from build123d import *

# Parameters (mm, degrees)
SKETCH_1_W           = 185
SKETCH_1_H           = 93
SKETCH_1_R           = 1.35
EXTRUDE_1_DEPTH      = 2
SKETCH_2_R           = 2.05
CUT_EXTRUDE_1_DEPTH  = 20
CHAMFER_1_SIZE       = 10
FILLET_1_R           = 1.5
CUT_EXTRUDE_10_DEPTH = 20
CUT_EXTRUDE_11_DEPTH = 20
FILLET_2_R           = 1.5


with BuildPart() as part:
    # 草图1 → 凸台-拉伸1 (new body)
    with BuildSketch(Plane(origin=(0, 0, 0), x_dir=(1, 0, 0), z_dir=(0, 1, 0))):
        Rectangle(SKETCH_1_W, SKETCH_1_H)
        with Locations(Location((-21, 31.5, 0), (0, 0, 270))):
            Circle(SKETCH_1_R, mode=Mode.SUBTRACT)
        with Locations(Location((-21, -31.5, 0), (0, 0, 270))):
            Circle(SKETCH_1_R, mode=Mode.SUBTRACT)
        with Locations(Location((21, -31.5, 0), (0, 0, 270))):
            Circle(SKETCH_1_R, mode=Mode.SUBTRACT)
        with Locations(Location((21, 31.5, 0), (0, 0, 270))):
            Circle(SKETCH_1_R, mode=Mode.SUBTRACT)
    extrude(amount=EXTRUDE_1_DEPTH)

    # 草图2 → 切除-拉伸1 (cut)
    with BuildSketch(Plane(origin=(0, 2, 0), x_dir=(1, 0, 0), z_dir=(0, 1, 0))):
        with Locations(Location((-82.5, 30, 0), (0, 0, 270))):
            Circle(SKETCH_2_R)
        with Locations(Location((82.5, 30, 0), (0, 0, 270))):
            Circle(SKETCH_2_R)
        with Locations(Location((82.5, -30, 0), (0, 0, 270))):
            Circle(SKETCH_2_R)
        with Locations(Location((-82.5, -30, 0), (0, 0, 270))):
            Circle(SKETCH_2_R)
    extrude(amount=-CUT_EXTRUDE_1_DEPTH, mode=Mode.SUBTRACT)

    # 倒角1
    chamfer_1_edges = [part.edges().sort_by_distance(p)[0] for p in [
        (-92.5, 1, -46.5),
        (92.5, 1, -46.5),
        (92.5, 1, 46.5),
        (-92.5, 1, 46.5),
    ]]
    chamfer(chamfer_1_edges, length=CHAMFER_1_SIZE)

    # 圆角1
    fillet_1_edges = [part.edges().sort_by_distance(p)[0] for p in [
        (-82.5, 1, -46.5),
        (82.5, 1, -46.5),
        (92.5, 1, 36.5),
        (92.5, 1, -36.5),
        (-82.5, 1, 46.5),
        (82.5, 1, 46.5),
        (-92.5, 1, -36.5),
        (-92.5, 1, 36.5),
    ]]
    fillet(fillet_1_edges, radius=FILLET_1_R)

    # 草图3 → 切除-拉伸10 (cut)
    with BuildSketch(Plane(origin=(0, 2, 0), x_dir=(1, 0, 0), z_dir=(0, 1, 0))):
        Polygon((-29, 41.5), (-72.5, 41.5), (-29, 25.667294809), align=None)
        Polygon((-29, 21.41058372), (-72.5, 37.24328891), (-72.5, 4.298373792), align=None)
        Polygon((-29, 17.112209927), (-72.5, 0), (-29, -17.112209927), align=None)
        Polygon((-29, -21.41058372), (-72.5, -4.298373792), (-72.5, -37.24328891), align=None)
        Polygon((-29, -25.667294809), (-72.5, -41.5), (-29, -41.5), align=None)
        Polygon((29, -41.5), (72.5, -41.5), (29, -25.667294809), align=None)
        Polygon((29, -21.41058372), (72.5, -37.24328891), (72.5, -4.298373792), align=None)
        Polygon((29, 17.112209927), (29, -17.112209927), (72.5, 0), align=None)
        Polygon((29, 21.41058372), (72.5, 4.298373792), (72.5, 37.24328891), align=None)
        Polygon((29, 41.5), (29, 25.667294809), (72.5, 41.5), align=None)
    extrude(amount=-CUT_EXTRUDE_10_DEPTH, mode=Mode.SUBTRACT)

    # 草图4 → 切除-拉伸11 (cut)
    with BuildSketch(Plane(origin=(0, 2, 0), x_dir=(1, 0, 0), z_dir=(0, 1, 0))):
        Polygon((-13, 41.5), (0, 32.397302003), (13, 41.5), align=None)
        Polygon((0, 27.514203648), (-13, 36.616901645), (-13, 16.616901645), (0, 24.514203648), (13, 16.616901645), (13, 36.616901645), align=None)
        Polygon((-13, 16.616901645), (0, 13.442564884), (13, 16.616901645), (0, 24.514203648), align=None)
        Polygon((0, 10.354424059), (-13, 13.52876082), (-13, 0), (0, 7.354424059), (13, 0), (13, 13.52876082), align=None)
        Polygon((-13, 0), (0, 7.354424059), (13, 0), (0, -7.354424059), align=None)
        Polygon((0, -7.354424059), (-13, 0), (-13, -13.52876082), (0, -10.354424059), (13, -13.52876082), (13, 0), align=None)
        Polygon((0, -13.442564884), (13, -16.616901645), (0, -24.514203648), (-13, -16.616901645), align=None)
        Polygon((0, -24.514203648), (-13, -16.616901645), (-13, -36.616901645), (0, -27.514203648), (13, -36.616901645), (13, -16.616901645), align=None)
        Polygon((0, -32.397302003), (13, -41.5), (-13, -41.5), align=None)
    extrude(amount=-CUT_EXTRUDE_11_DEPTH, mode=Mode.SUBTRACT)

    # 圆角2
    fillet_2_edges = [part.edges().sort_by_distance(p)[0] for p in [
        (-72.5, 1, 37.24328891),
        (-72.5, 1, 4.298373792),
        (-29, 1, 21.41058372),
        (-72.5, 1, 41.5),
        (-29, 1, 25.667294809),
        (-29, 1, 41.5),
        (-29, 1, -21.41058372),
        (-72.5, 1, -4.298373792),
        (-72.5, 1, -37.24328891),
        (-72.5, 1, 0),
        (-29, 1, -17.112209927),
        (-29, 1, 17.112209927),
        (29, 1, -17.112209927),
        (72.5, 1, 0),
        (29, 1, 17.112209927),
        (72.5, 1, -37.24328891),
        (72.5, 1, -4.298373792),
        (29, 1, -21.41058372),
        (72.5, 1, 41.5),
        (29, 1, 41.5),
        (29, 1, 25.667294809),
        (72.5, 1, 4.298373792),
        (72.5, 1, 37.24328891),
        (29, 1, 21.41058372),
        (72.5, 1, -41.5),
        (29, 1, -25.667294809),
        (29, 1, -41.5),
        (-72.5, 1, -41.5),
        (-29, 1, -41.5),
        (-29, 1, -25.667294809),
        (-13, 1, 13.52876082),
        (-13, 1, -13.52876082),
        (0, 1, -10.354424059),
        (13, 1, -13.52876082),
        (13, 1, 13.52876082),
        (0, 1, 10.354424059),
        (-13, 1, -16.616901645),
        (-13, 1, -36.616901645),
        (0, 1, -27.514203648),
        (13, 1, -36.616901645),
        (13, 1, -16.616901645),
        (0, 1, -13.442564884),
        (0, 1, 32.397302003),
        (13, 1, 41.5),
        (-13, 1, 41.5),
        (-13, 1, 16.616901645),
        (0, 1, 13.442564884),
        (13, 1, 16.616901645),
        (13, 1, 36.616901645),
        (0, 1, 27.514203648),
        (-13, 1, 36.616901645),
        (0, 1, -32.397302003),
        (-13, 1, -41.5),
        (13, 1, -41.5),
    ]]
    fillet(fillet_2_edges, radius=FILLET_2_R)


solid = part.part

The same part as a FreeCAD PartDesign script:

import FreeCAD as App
import Part
import Sketcher
Q = App.Units.Quantity


def edges_at(feature, points):
    """Names of the edges that pass closest to the given points."""
    edges = feature.Shape.Edges
    near = lambda p: min(range(len(edges)), key=lambda i: edges[i].distToShape(Part.Vertex(*p))[0])
    return sorted({f"Edge{near(p) + 1}" for p in points})


def add_polygon(sketch, points):
    """Adds a closed chain of lines whose ends are joined by coincident constraints."""
    first, n = sketch.GeometryCount, len(points)
    for a, b in zip(points, points[1:] + points[:1]):
        sketch.addGeometry(Part.LineSegment(App.Vector(*a, 0), App.Vector(*b, 0)), False)
    for i in range(n):
        sketch.addConstraint(Sketcher.Constraint("Coincident", first + i, 2, first + (i + 1) % n, 1))

doc = App.newDocument("Part")
body = doc.addObject("PartDesign::Body", "Body")

sketch1 = doc.addObject("Sketcher::SketchObject", "Sketch")
body.addObject(sketch1)
sketch1.AttachmentSupport = (doc.XZ_Plane, [""])
sketch1.MapMode = "FlatFace"
add_polygon(sketch1, [(-92.5, -46.5), (-92.5, 46.5), (92.5, 46.5), (92.5, -46.5)])
sketch1.addGeometry(Part.Circle(App.Vector(-21, 31.5, 0), App.Vector(0, 0, 1), 1.35), False)
sketch1.addGeometry(Part.Circle(App.Vector(21, 31.5, 0), App.Vector(0, 0, 1), 1.35), False)
sketch1.addGeometry(Part.Circle(App.Vector(-21, -31.5, 0), App.Vector(0, 0, 1), 1.35), False)
sketch1.addGeometry(Part.Circle(App.Vector(21, -31.5, 0), App.Vector(0, 0, 1), 1.35), False)
sketch1.addConstraint(Sketcher.Constraint("Vertical", 0))
sketch1.addConstraint(Sketcher.Constraint("Horizontal", 1))
sketch1.addConstraint(Sketcher.Constraint("Vertical", 2))
sketch1.addConstraint(Sketcher.Constraint("Horizontal", 3))
sketch1.addConstraint(Sketcher.Constraint("Equal", 4, 5))
sketch1.addConstraint(Sketcher.Constraint("Equal", 5, 6))
sketch1.addConstraint(Sketcher.Constraint("Equal", 6, 7))
sketch1.addConstraint(Sketcher.Constraint("Symmetric", 5, 3, 6, 3, -1, 1))
sketch1.addConstraint(Sketcher.Constraint("Symmetric", 4, 3, 7, 3, -1, 1))
sketch1.addConstraint(Sketcher.Constraint("Symmetric", 0, 2, 2, 2, -1, 1))
sketch1.addConstraint(Sketcher.Constraint("Symmetric", 4, 3, 5, 3, -2))
sketch1.addConstraint(Sketcher.Constraint("Diameter", 4, 2.7))
sketch1.addConstraint(Sketcher.Constraint("DistanceX", 1, 1, 1, 2, 185.0))
sketch1.addConstraint(Sketcher.Constraint("DistanceY", 0, 1, 0, 2, 93.0))
sketch1.addConstraint(Sketcher.Constraint("DistanceX", 4, 3, -1, 1, 21.0))
sketch1.addConstraint(Sketcher.Constraint("DistanceY", 6, 3, 4, 3, 63.0))
pad1 = doc.addObject("PartDesign::Pad", "Pad")
body.addObject(pad1)
pad1.Profile = sketch1
pad1.Length = 2
pad1.Reversed = True

sketch2 = doc.addObject("Sketcher::SketchObject", "Sketch001")
body.addObject(sketch2)
sketch2.AttachmentSupport = (doc.XZ_Plane, [""])
sketch2.MapMode = "FlatFace"
sketch2.AttachmentOffset = App.Placement(App.Vector(0, 0, -2), App.Rotation())
sketch2.addGeometry(Part.Circle(App.Vector(-82.5, -30, 0), App.Vector(0, 0, 1), 2.05), False)
sketch2.addGeometry(Part.Circle(App.Vector(82.5, -30, 0), App.Vector(0, 0, 1), 2.05), False)
sketch2.addGeometry(Part.Circle(App.Vector(82.5, 30, 0), App.Vector(0, 0, 1), 2.05), False)
sketch2.addGeometry(Part.Circle(App.Vector(-82.5, 30, 0), App.Vector(0, 0, 1), 2.05), False)
sketch2.addConstraint(Sketcher.Constraint("Equal", 0, 1))
sketch2.addConstraint(Sketcher.Constraint("Equal", 1, 2))
sketch2.addConstraint(Sketcher.Constraint("Equal", 2, 3))
sketch2.addConstraint(Sketcher.Constraint("Symmetric", 0, 3, 2, 3, -1, 1))
sketch2.addConstraint(Sketcher.Constraint("Symmetric", 1, 3, 3, 3, -1, 1))
sketch2.addConstraint(Sketcher.Constraint("Symmetric", 0, 3, 1, 3, -2))
sketch2.addConstraint(Sketcher.Constraint("Diameter", 0, 4.1))
sketch2.addConstraint(Sketcher.Constraint("DistanceY", 0, 3, -1, 1, 30.0))
sketch2.addConstraint(Sketcher.Constraint("DistanceX", 0, 3, 1, 3, 165.0))
pocket1 = doc.addObject("PartDesign::Pocket", "Pocket")
body.addObject(pocket1)
pocket1.Profile = sketch2
pocket1.Length = 20
pocket1.Reversed = True
doc.recompute()

chamfer = doc.addObject("PartDesign::Chamfer", "Chamfer")
body.addObject(chamfer)
chamfer.Base = (pocket1, edges_at(pocket1, [
    (-92.5, 1, -46.5),
    (92.5, 1, -46.5),
    (92.5, 1, 46.5),
    (-92.5, 1, 46.5),
]))
chamfer.Size = 10
doc.recompute()

fillet = doc.addObject("PartDesign::Fillet", "Fillet")
body.addObject(fillet)
fillet.Base = (chamfer, edges_at(chamfer, [
    (-82.5, 1, -46.5),
    (82.5, 1, -46.5),
    (92.5, 1, 36.5),
    (92.5, 1, -36.5),
    (-82.5, 1, 46.5),
    (82.5, 1, 46.5),
    (-92.5, 1, -36.5),
    (-92.5, 1, 36.5),
]))
fillet.Radius = 1.5

sketch3 = doc.addObject("Sketcher::SketchObject", "Sketch002")
body.addObject(sketch3)
sketch3.AttachmentSupport = (doc.XZ_Plane, [""])
sketch3.MapMode = "FlatFace"
sketch3.AttachmentOffset = App.Placement(App.Vector(0, 0, -2), App.Rotation())
add_polygon(sketch3, [(-29, -41.5), (-72.5, -41.5), (-29, -25.667295)])
add_polygon(sketch3, [(-29, -21.410584), (-72.5, -37.243289), (-72.5, -4.298374)])
add_polygon(sketch3, [(-29, -17.11221), (-72.5, 0), (-29, 17.11221)])
add_polygon(sketch3, [(-29, 21.410584), (-72.5, 4.298374), (-72.5, 37.243289)])
add_polygon(sketch3, [(-29, 25.667295), (-72.5, 41.5), (-29, 41.5)])
add_polygon(sketch3, [(29, 41.5), (72.5, 41.5), (29, 25.667295)])
add_polygon(sketch3, [(29, 21.410584), (72.5, 37.243289), (72.5, 4.298374)])
add_polygon(sketch3, [(29, -17.11221), (29, 17.11221), (72.5, 0)])
add_polygon(sketch3, [(29, -21.410584), (72.5, -4.298374), (72.5, -37.243289)])
add_polygon(sketch3, [(29, -41.5), (29, -25.667295), (72.5, -41.5)])
sketch3.addConstraint(Sketcher.Constraint("Horizontal", 0))
sketch3.addConstraint(Sketcher.Constraint("Vertical", 2))
sketch3.addConstraint(Sketcher.Constraint("Vertical", 4))
sketch3.addConstraint(Sketcher.Constraint("Vertical", 8))
sketch3.addConstraint(Sketcher.Constraint("Vertical", 10))
sketch3.addConstraint(Sketcher.Constraint("Horizontal", 13))
sketch3.addConstraint(Sketcher.Constraint("Vertical", 14))
sketch3.addConstraint(Sketcher.Constraint("Horizontal", 15))
sketch3.addConstraint(Sketcher.Constraint("Vertical", 17))
sketch3.addConstraint(Sketcher.Constraint("Vertical", 19))
sketch3.addConstraint(Sketcher.Constraint("Vertical", 21))
sketch3.addConstraint(Sketcher.Constraint("Vertical", 25))
sketch3.addConstraint(Sketcher.Constraint("Vertical", 27))
sketch3.addConstraint(Sketcher.Constraint("Horizontal", 29))
sketch3.addConstraint(Sketcher.Constraint("Symmetric", 0, 2, 15, 2, -1, 1))
sketch3.addConstraint(Sketcher.Constraint("Symmetric", 1, 2, 16, 2, -1, 1))
sketch3.addConstraint(Sketcher.Constraint("Symmetric", 3, 2, 18, 2, -1, 1))
sketch3.addConstraint(Sketcher.Constraint("Symmetric", 5, 2, 20, 2, -1, 1))
sketch3.addConstraint(Sketcher.Constraint("Symmetric", 8, 2, 21, 2, -1, 1))
sketch3.addConstraint(Sketcher.Constraint("Symmetric", 6, 2, 22, 2, -1, 1))
sketch3.addConstraint(Sketcher.Constraint("Symmetric", 9, 2, 24, 2, -1, 1))
sketch3.addConstraint(Sketcher.Constraint("Symmetric", 11, 2, 26, 2, -1, 1))
sketch3.addConstraint(Sketcher.Constraint("Symmetric", 14, 2, 27, 2, -1, 1))
sketch3.addConstraint(Sketcher.Constraint("Symmetric", 12, 2, 28, 2, -1, 1))
sketch3.addConstraint(Sketcher.Constraint("Symmetric", 12, 2, 15, 2, -2))
sketch3.addConstraint(Sketcher.Constraint("Symmetric", 14, 2, 16, 2, -2))
sketch3.addConstraint(Sketcher.Constraint("Symmetric", 10, 2, 18, 2, -2))
sketch3.addConstraint(Sketcher.Constraint("Symmetric", 11, 2, 20, 2, -2))
sketch3.addConstraint(Sketcher.Constraint("PointOnObject", 6, 2, -1))
sketch3.addConstraint(Sketcher.Constraint("Parallel", 1, 3))
sketch3.addConstraint(Sketcher.Constraint("Parallel", 5, 6))
sketch3.addConstraint(Sketcher.Constraint("Parallel", 7, 9))
sketch3.addConstraint(Sketcher.Constraint("Parallel", 6, 20))
sketch3.addConstraint(Sketcher.Constraint("Parallel", 9, 23))
sketch3.addConstraint(Sketcher.Constraint("Parallel", 12, 26))
sketch3.addConstraint(Sketcher.Constraint("Horizontal", 9, 2, 19, 2))
sketch3.addConstraint(Sketcher.Constraint("Vertical", 0, 2, 3, 2))
sketch3.addConstraint(Sketcher.Constraint("Vertical", 2, 2, 5, 2))
sketch3.addConstraint(Sketcher.Constraint("Vertical", 4, 2, 6, 2))
sketch3.addConstraint(Sketcher.Constraint("Vertical", 5, 2, 7, 2))
sketch3.addConstraint(Sketcher.Constraint("Angle", 1, Q("20 deg")))
sketch3.addConstraint(Sketcher.Constraint("DistanceX", 0, 2, 0, 1, 43.5))
sketch3.addConstraint(Sketcher.Constraint("DistanceX", 1, 2, -1, 1, 29.0))
sketch3.addConstraint(Sketcher.Constraint("DistanceY", 0, 2, -1, 1, 41.5))
sketch3.addConstraint(Sketcher.Constraint("DistanceY", 8, 2, 8, 1, 34.22442))
sketch3.addConstraint(Sketcher.Constraint("DistanceY", 8, 2, 10, 2, 54.355499))
pocket2 = doc.addObject("PartDesign::Pocket", "Pocket001")
body.addObject(pocket2)
pocket2.Profile = sketch3
pocket2.Length = 20
pocket2.Reversed = True

sketch4 = doc.addObject("Sketcher::SketchObject", "Sketch003")
body.addObject(sketch4)
sketch4.AttachmentSupport = (doc.XZ_Plane, [""])
sketch4.MapMode = "FlatFace"
sketch4.AttachmentOffset = App.Placement(App.Vector(0, 0, -2), App.Rotation())
add_polygon(sketch4, [(-13, -41.5), (0, -32.397302), (13, -41.5)])
add_polygon(sketch4, [(0, -27.514204), (-13, -36.616902), (-13, -16.616902), (0, -13.442565), (13, -16.616902), (13, -36.616902)])
add_polygon(sketch4, [(0, -10.354424), (-13, -13.528761), (-13, 13.528761), (0, 10.354424), (13, 13.528761), (13, -13.528761)])
add_polygon(sketch4, [(13, 16.616902), (0, 13.442565), (-13, 16.616902), (-13, 36.616902), (0, 27.514204), (13, 36.616902)])
add_polygon(sketch4, [(13, 41.5), (0, 32.397302), (-13, 41.5)])
sketch4.addConstraint(Sketcher.Constraint("Horizontal", 2))
sketch4.addConstraint(Sketcher.Constraint("Vertical", 4))
sketch4.addConstraint(Sketcher.Constraint("Vertical", 7))
sketch4.addConstraint(Sketcher.Constraint("Vertical", 10))
sketch4.addConstraint(Sketcher.Constraint("Vertical", 13))
sketch4.addConstraint(Sketcher.Constraint("Vertical", 17))
sketch4.addConstraint(Sketcher.Constraint("Vertical", 20))
sketch4.addConstraint(Sketcher.Constraint("Horizontal", 23))
sketch4.addConstraint(Sketcher.Constraint("Symmetric", 9, 2, 12, 2, -1, 1))
sketch4.addConstraint(Sketcher.Constraint("Symmetric", 11, 2, 14, 2, -1, 1))
sketch4.addConstraint(Sketcher.Constraint("Symmetric", 5, 2, 15, 2, -1, 1))
sketch4.addConstraint(Sketcher.Constraint("Symmetric", 6, 2, 16, 2, -1, 1))
sketch4.addConstraint(Sketcher.Constraint("Symmetric", 8, 2, 18, 2, -1, 1))
sketch4.addConstraint(Sketcher.Constraint("Symmetric", 3, 2, 19, 2, -1, 1))
sketch4.addConstraint(Sketcher.Constraint("Symmetric", 0, 2, 21, 2, -1, 1))
sketch4.addConstraint(Sketcher.Constraint("Symmetric", 1, 2, 22, 2, -1, 1))
sketch4.addConstraint(Sketcher.Constraint("Symmetric", 4, 2, 6, 2, -2))
sketch4.addConstraint(Sketcher.Constraint("PointOnObject", 0, 2, -2))
sketch4.addConstraint(Sketcher.Constraint("PointOnObject", 5, 2, -2))
sketch4.addConstraint(Sketcher.Constraint("PointOnObject", 8, 2, -2))
sketch4.addConstraint(Sketcher.Constraint("PointOnObject", 11, 2, -2))
sketch4.addConstraint(Sketcher.Constraint("Parallel", 0, 3))
sketch4.addConstraint(Sketcher.Constraint("Parallel", 1, 8))
sketch4.addConstraint(Sketcher.Constraint("Parallel", 5, 9))
sketch4.addConstraint(Sketcher.Constraint("Parallel", 6, 11))
sketch4.addConstraint(Sketcher.Constraint("Parallel", 11, 14))
sketch4.addConstraint(Sketcher.Constraint("Parallel", 12, 15))
sketch4.addConstraint(Sketcher.Constraint("Parallel", 8, 18))
sketch4.addConstraint(Sketcher.Constraint("Parallel", 19, 21))
sketch4.addConstraint(Sketcher.Constraint("Horizontal", 3, 2, 7, 2))
sketch4.addConstraint(Sketcher.Constraint("Vertical", 2, 2, 3, 2))
sketch4.addConstraint(Sketcher.Constraint("Vertical", 4, 2, 9, 2))
sketch4.addConstraint(Sketcher.Constraint("DistanceX", 2, 2, 2, 1, 26.0))
sketch4.addConstraint(Sketcher.Constraint("DistanceY", 4, 1, 4, 2, 20.0))
sketch4.addConstraint(Sketcher.Constraint("Angle", 0, Q("35 deg")))
sketch4.addConstraint(Sketcher.Constraint("DistanceY", 1, 2, -1, 1, 41.5))
sketch4.addConstraint(Sketcher.Constraint("DistanceY", 10, 1, 10, 2, 27.057522))
sketch4.addConstraint(Sketcher.Constraint("DistanceY", 3, 2, -1, 1, 36.616902))
sketch4.addConstraint(Sketcher.Constraint("DistanceY", 8, 2, 5, 2, 14.071639))
pocket3 = doc.addObject("PartDesign::Pocket", "Pocket002")
body.addObject(pocket3)
pocket3.Profile = sketch4
pocket3.Length = 20
pocket3.Reversed = True
doc.recompute()

fillet2 = doc.addObject("PartDesign::Fillet", "Fillet001")
body.addObject(fillet2)
fillet2.Base = (pocket3, edges_at(pocket3, [
    (-72.5, 1, 37.243),
    (-72.5, 1, 4.298),
    (-29, 1, 21.411),
    (-72.5, 1, 41.5),
    (-29, 1, 25.667),
    (-29, 1, 41.5),
    (-29, 1, -21.411),
    (-72.5, 1, -4.298),
    (-72.5, 1, -37.243),
    (-72.5, 1, 0),
    (-29, 1, -17.112),
    (-29, 1, 17.112),
    (29, 1, -17.112),
    (72.5, 1, 0),
    (29, 1, 17.112),
    (72.5, 1, -37.243),
    (72.5, 1, -4.298),
    (29, 1, -21.411),
    (72.5, 1, 41.5),
    (29, 1, 41.5),
    (29, 1, 25.667),
    (72.5, 1, 4.298),
    (72.5, 1, 37.243),
    (29, 1, 21.411),
    (72.5, 1, -41.5),
    (29, 1, -25.667),
    (29, 1, -41.5),
    (-72.5, 1, -41.5),
    (-29, 1, -41.5),
    (-29, 1, -25.667),
    (-13, 1, 13.529),
    (-13, 1, -13.529),
    (0, 1, -10.354),
    (13, 1, -13.529),
    (13, 1, 13.529),
    (0, 1, 10.354),
    (-13, 1, -16.617),
    (-13, 1, -36.617),
    (0, 1, -27.514),
    (13, 1, -36.617),
    (13, 1, -16.617),
    (0, 1, -13.443),
    (0, 1, 32.397),
    (13, 1, 41.5),
    (-13, 1, 41.5),
    (-13, 1, 16.617),
    (0, 1, 13.443),
    (13, 1, 16.617),
    (13, 1, 36.617),
    (0, 1, 27.514),
    (-13, 1, 36.617),
    (0, 1, -32.397),
    (-13, 1, -41.5),
    (13, 1, -41.5),
]))
fillet2.Radius = 1.5

doc.recompute()
